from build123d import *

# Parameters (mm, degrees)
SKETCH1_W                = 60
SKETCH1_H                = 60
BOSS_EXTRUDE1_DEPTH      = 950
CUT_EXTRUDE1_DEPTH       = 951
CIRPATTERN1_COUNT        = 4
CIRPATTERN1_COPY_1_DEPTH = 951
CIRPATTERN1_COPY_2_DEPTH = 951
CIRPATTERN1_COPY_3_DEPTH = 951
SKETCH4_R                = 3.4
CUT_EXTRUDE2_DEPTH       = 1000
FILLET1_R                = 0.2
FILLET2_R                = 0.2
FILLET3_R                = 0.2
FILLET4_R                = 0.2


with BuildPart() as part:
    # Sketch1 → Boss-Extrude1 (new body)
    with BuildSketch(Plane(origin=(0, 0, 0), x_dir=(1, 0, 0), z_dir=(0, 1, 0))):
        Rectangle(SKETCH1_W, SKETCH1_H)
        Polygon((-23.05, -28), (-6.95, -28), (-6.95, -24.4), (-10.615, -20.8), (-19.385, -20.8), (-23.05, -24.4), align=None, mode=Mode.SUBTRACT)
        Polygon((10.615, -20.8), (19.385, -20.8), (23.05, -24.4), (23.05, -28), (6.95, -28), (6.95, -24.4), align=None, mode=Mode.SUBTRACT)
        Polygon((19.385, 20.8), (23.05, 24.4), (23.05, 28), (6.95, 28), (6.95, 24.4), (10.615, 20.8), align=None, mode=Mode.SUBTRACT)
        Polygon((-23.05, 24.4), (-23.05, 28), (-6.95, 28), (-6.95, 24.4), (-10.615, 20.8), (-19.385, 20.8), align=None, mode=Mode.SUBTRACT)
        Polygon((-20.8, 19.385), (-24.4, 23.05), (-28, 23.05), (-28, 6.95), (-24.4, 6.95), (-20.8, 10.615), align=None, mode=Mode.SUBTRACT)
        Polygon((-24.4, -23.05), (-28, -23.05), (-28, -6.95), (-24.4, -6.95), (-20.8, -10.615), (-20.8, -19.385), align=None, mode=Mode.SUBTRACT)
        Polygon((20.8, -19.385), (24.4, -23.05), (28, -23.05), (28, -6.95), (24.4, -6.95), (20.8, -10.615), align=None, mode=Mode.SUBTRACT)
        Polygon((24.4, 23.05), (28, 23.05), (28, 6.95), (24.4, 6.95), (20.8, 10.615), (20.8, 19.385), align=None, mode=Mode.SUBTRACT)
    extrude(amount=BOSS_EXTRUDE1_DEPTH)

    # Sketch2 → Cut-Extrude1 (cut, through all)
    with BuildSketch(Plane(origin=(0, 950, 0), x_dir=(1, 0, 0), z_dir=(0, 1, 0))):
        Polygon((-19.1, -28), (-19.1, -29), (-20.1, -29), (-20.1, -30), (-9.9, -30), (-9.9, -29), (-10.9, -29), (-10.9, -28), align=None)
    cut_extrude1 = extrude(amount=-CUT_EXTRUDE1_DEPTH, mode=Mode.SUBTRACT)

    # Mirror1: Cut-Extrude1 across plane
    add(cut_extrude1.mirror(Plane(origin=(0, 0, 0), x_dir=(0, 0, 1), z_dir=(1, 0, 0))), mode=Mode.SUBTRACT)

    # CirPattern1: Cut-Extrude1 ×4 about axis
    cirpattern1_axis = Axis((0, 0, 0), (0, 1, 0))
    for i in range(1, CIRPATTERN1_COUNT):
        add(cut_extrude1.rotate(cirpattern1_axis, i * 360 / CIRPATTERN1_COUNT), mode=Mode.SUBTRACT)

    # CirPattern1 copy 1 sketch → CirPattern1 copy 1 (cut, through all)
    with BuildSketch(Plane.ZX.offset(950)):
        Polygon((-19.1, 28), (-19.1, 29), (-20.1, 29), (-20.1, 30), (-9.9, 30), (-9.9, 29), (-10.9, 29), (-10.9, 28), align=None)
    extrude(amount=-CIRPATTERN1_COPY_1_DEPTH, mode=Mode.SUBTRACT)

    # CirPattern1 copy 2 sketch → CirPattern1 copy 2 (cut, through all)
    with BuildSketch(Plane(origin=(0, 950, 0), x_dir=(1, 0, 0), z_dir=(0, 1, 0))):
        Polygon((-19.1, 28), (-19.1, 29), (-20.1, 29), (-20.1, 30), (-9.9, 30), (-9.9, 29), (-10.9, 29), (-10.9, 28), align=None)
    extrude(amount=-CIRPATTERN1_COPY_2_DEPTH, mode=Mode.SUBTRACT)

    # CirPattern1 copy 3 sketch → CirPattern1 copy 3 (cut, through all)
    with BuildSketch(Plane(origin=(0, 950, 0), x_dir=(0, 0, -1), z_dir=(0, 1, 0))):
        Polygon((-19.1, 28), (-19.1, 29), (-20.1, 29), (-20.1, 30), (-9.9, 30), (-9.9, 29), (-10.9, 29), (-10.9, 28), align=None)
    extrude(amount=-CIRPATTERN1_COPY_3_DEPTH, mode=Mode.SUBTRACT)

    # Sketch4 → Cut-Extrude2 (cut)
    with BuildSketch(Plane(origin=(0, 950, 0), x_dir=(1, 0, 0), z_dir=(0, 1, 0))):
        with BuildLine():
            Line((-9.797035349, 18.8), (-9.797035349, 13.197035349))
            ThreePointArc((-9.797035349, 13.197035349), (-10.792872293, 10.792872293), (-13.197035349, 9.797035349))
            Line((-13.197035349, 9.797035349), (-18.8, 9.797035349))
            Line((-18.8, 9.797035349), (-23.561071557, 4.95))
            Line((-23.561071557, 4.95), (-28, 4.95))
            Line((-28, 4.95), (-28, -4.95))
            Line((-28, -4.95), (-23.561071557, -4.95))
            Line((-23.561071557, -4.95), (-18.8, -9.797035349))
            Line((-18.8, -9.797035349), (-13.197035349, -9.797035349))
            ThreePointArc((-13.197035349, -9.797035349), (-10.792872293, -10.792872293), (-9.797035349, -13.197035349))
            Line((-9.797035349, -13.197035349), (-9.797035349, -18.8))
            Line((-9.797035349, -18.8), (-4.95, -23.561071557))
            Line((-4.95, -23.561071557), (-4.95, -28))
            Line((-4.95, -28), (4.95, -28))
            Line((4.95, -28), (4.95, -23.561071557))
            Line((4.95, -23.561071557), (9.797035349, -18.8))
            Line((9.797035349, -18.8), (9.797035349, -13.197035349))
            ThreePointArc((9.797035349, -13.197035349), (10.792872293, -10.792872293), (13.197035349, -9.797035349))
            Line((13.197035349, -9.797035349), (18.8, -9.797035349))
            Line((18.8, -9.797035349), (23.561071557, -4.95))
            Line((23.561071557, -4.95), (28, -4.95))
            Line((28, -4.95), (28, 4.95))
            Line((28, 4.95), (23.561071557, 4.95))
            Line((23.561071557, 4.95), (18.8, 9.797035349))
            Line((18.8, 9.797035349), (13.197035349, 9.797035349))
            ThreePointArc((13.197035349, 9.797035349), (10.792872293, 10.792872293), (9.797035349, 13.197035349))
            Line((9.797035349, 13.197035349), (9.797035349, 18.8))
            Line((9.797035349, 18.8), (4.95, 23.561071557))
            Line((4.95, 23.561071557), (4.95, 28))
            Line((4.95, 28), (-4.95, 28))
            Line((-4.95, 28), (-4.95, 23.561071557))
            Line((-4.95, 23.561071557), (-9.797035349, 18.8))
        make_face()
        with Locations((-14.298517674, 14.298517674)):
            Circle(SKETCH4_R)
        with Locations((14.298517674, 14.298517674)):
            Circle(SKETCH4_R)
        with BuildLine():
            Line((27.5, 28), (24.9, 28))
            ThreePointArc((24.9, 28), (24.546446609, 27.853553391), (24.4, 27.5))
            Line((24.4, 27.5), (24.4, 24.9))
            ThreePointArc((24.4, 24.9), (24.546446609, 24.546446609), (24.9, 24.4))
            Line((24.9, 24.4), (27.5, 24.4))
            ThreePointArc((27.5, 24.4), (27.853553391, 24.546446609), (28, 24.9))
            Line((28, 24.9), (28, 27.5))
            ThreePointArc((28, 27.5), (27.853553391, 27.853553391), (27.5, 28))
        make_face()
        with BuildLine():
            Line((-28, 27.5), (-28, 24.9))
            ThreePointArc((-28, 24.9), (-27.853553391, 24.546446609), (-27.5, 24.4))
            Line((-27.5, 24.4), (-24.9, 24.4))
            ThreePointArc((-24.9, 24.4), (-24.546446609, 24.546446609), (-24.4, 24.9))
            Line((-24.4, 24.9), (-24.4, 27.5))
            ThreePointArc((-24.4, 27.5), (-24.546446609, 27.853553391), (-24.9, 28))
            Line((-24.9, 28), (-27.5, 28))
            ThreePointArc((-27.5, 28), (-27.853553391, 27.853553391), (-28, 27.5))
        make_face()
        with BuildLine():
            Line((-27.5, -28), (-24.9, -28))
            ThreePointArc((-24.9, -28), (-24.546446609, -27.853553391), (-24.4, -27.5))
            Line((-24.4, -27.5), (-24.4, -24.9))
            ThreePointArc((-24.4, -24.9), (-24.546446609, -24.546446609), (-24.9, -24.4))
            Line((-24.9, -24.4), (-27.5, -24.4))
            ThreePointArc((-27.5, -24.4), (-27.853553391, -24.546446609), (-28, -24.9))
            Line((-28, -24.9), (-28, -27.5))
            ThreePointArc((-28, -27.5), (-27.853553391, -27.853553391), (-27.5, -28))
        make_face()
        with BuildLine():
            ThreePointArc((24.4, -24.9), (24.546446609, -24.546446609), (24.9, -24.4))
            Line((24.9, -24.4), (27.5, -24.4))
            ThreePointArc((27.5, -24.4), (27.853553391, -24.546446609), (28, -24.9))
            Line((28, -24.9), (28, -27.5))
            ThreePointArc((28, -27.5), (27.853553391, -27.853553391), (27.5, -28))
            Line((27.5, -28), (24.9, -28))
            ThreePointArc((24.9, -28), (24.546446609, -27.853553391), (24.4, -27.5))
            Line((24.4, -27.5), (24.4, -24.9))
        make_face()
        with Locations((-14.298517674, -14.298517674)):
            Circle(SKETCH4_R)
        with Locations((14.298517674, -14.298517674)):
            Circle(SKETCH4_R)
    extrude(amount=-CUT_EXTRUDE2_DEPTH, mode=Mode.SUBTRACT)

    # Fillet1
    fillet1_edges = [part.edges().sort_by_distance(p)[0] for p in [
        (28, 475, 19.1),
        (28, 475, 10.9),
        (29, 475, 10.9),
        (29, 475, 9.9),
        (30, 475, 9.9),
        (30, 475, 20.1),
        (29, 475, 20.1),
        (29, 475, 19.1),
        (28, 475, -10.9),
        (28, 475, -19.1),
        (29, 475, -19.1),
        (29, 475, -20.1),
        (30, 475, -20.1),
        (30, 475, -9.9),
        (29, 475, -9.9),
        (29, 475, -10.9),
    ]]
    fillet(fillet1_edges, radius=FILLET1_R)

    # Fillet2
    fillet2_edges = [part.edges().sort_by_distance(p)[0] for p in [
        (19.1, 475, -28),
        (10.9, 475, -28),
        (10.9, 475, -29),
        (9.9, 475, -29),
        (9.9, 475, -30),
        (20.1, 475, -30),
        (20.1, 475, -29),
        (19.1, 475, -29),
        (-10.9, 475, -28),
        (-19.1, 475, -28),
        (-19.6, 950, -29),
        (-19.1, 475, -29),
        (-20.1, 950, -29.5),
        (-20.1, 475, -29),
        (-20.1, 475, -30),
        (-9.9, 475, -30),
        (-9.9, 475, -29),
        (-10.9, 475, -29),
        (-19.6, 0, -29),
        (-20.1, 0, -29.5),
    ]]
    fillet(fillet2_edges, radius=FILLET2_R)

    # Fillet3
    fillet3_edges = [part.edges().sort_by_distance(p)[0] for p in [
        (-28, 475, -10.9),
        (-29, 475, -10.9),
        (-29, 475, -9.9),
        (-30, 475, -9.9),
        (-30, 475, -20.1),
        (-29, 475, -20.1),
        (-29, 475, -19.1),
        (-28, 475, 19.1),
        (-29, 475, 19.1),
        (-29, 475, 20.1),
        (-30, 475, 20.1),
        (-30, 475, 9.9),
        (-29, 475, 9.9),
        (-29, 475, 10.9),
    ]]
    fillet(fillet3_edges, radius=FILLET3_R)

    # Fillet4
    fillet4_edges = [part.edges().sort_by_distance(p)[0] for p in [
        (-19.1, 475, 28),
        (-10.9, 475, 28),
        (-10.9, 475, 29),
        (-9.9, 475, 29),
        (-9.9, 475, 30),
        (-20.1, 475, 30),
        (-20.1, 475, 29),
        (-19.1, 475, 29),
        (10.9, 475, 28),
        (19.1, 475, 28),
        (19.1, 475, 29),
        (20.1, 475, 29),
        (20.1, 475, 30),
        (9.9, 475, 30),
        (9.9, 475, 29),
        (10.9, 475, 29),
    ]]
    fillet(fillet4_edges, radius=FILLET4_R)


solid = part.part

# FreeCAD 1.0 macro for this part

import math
import FreeCAD as App
import Part
import Sketcher

V = App.Vector
Q = App.Units.Quantity


def edges_at(feature, points):
    """Names of the edges that pass closest to the given points."""
    edges = feature.Shape.Edges
    near = lambda p: min(range(len(edges)), key=lambda i: edges[i].distToShape(Part.Vertex(*p))[0])
    return sorted({f"Edge{near(p) + 1}" for p in points})


def add_polygon(sketch, points):
    """Adds a closed chain of lines whose ends are joined by coincident constraints."""
    first, n = sketch.GeometryCount, len(points)
    for a, b in zip(points, points[1:] + points[:1]):
        sketch.addGeometry(Part.LineSegment(App.Vector(*a, 0), App.Vector(*b, 0)), False)
    for i in range(n):
        sketch.addConstraint(Sketcher.Constraint("Coincident", first + i, 2, first + (i + 1) % n, 1))

doc = App.newDocument("Part")
body = doc.addObject("PartDesign::Body", "Body")

sketch1 = body.newObject("Sketcher::SketchObject", "Sketch")
sketch1.AttachmentSupport = (doc.getObject("XZ_Plane"), [""])
sketch1.MapMode = "FlatFace"
add_polygon(sketch1, [(-30, -30), (-30, 30), (30, 30), (30, -30)])
add_polygon(sketch1, [(-7, 28), (-23.1, 28), (-23.1, 24.4), (-19.4, 20.8), (-10.6, 20.8), (-7, 24.4)])
add_polygon(sketch1, [(-20.8, 19.4), (-24.4, 23.1), (-28, 23.1), (-28, 7), (-24.4, 7), (-20.8, 10.6)])
add_polygon(sketch1, [(7, 24.4), (10.6, 20.8), (19.4, 20.8), (23.1, 24.4), (23.1, 28), (7, 28)])
add_polygon(sketch1, [(24.4, 23.1), (20.8, 19.4), (20.8, 10.6), (24.4, 7), (28, 7), (28, 23.1)])
add_polygon(sketch1, [(-24.4, -23.1), (-20.8, -19.4), (-20.8, -10.6), (-24.4, -7), (-28, -7), (-28, -23.1)])
add_polygon(sketch1, [(-19.4, -20.8), (-23.1, -24.4), (-23.1, -28), (-7, -28), (-7, -24.4), (-10.6, -20.8)])
add_polygon(sketch1, [(20.8, -19.4), (24.4, -23.1), (28, -23.1), (28, -7), (24.4, -7), (20.8, -10.6)])
add_polygon(sketch1, [(23.1, -24.4), (19.4, -20.8), (10.6, -20.8), (7, -24.4), (7, -28), (23.1, -28)])
sketch1.addConstraint(Sketcher.Constraint("Vertical", 0))
sketch1.addConstraint(Sketcher.Constraint("Horizontal", 1))
sketch1.addConstraint(Sketcher.Constraint("Vertical", 2))
sketch1.addConstraint(Sketcher.Constraint("Horizontal", 3))
sketch1.addConstraint(Sketcher.Constraint("Horizontal", 4))
sketch1.addConstraint(Sketcher.Constraint("Vertical", 5))
sketch1.addConstraint(Sketcher.Constraint("Horizontal", 7))
sketch1.addConstraint(Sketcher.Constraint("Vertical", 9))
sketch1.addConstraint(Sketcher.Constraint("Horizontal", 11))
sketch1.addConstraint(Sketcher.Constraint("Vertical", 12))
sketch1.addConstraint(Sketcher.Constraint("Horizontal", 13))
sketch1.addConstraint(Sketcher.Constraint("Vertical", 15))
sketch1.addConstraint(Sketcher.Constraint("Horizontal", 17))
sketch1.addConstraint(Sketcher.Constraint("Vertical", 19))
sketch1.addConstraint(Sketcher.Constraint("Horizontal", 20))
sketch1.addConstraint(Sketcher.Constraint("Vertical", 21))
sketch1.addConstraint(Sketcher.Constraint("Vertical", 23))
sketch1.addConstraint(Sketcher.Constraint("Horizontal", 25))
sketch1.addConstraint(Sketcher.Constraint("Vertical", 26))
sketch1.addConstraint(Sketcher.Constraint("Horizontal", 27))
sketch1.addConstraint(Sketcher.Constraint("Vertical", 29))
sketch1.addConstraint(Sketcher.Constraint("Horizontal", 31))
sketch1.addConstraint(Sketcher.Constraint("Vertical", 32))
sketch1.addConstraint(Sketcher.Constraint("Horizontal", 33))
sketch1.addConstraint(Sketcher.Constraint("Vertical", 35))
sketch1.addConstraint(Sketcher.Constraint("Horizontal", 36))
sketch1.addConstraint(Sketcher.Constraint("Vertical", 37))
sketch1.addConstraint(Sketcher.Constraint("Horizontal", 39))
sketch1.addConstraint(Sketcher.Constraint("Horizontal", 41))
sketch1.addConstraint(Sketcher.Constraint("Vertical", 42))
sketch1.addConstraint(Sketcher.Constraint("Horizontal", 43))
sketch1.addConstraint(Sketcher.Constraint("Vertical", 45))
sketch1.addConstraint(Sketcher.Constraint("Horizontal", 47))
sketch1.addConstraint(Sketcher.Constraint("Vertical", 49))
sketch1.addConstraint(Sketcher.Constraint("Horizontal", 50))
sketch1.addConstraint(Sketcher.Constraint("Vertical", 51))
sketch1.addConstraint(Sketcher.Constraint("Symmetric", 0, 2, 2, 2, -1, 1))
sketch1.addConstraint(Sketcher.Constraint("Symmetric", 22, 2, 28, 2, -1, 1))
sketch1.addConstraint(Sketcher.Constraint("Symmetric", 24, 2, 30, 2, -1, 1))
sketch1.addConstraint(Sketcher.Constraint("Symmetric", 26, 2, 32, 2, -1, 1))
sketch1.addConstraint(Sketcher.Constraint("Symmetric", 18, 2, 34, 2, -1, 1))
sketch1.addConstraint(Sketcher.Constraint("Symmetric", 20, 2, 36, 2, -1, 1))
sketch1.addConstraint(Sketcher.Constraint("Symmetric", 16, 2, 38, 2, -1, 1))
sketch1.addConstraint(Sketcher.Constraint("Symmetric", 10, 2, 40, 2, -1, 1))
sketch1.addConstraint(Sketcher.Constraint("Symmetric", 12, 2, 42, 2, -1, 1))
sketch1.addConstraint(Sketcher.Constraint("Symmetric", 14, 2, 44, 2, -1, 1))
sketch1.addConstraint(Sketcher.Constraint("Symmetric", 6, 2, 46, 2, -1, 1))
sketch1.addConstraint(Sketcher.Constraint("Symmetric", 8, 2, 48, 2, -1, 1))
sketch1.addConstraint(Sketcher.Constraint("Symmetric", 4, 2, 50, 2, -1, 1))
sketch1.addConstraint(Sketcher.Constraint("Symmetric", 7, 2, 16, 2, -2))
sketch1.addConstraint(Sketcher.Constraint("Symmetric", 5, 2, 18, 2, -2))
sketch1.addConstraint(Sketcher.Constraint("Symmetric", 9, 2, 20, 2, -2))
sketch1.addConstraint(Sketcher.Constraint("Symmetric", 15, 2, 22, 2, -2))
sketch1.addConstraint(Sketcher.Constraint("Symmetric", 13, 2, 24, 2, -2))
sketch1.addConstraint(Sketcher.Constraint("Symmetric", 11, 2, 26, 2, -2))
sketch1.addConstraint(Sketcher.Constraint("Perpendicular", 8, 10))
sketch1.addConstraint(Sketcher.Constraint("Perpendicular", 6, 14))
sketch1.addConstraint(Sketcher.Constraint("Perpendicular", 14, 16))
sketch1.addConstraint(Sketcher.Constraint("Perpendicular", 10, 18))
sketch1.addConstraint(Sketcher.Constraint("Perpendicular", 16, 22))
sketch1.addConstraint(Sketcher.Constraint("Perpendicular", 18, 24))
sketch1.addConstraint(Sketcher.Constraint("Parallel", 22, 28))
sketch1.addConstraint(Sketcher.Constraint("Parallel", 24, 30))
sketch1.addConstraint(Sketcher.Constraint("Perpendicular", 30, 34))
sketch1.addConstraint(Sketcher.Constraint("Perpendicular", 28, 38))
sketch1.addConstraint(Sketcher.Constraint("Perpendicular", 34, 40))
sketch1.addConstraint(Sketcher.Constraint("Perpendicular", 38, 44))
sketch1.addConstraint(Sketcher.Constraint("Perpendicular", 44, 46))
sketch1.addConstraint(Sketcher.Constraint("Perpendicular", 40, 48))
sketch1.addConstraint(Sketcher.Constraint("Horizontal", 5, 2, 8, 2))
sketch1.addConstraint(Sketcher.Constraint("Horizontal", 18, 2, 21, 2))
sketch1.addConstraint(Sketcher.Constraint("Vertical", 10, 2, 13, 2))
sketch1.addConstraint(Sketcher.Constraint("Equal", 3, 0))
sketch1.addConstraint(Sketcher.Constraint("Equal", 43, 5))
sketch1.addConstraint(Sketcher.Constraint("Equal", 50, 12))
sketch1.addConstraint(Sketcher.Constraint("Equal", 47, 15))
sketch1.addConstraint(Sketcher.Constraint("DistanceX", 1, 1, 1, 2, Q("60 mm")))
sketch1.addConstraint(Sketcher.Constraint("DistanceX", 4, 2, 4, 1, Q("16.1 mm")))
sketch1.addConstraint(Sketcher.Constraint("DistanceX", 11, 2, 11, 1, Q("3.6 mm")))
sketch1.addConstraint(Sketcher.Constraint("DistanceY", -1, 1, 4, 2, Q("28 mm")))
sketch1.addConstraint(Sketcher.Constraint("DistanceX", 11, 2, -1, 1, Q("28 mm")))
sketch1.addConstraint(Sketcher.Constraint("DistanceX", 6, 2, 16, 2, Q("30 mm")))
sketch1.addConstraint(Sketcher.Constraint("DistanceY", 28, 2, 14, 2, Q("30 mm")))
sketch1.addConstraint(Sketcher.Constraint("DistanceX", 7, 1, 7, 2, Q("8.77 mm")))
sketch1.addConstraint(Sketcher.Constraint("DistanceY", -1, 1, 6, 2, Q("20.8 mm")))
pad1 = body.newObject("PartDesign::Pad", "Pad")
pad1.Profile = sketch1
pad1.Length = 950
pad1.Reversed = True

sketch2 = body.newObject("Sketcher::SketchObject", "Sketch001")
sketch2.AttachmentSupport = (doc.getObject("XZ_Plane"), [""])
sketch2.MapMode = "FlatFace"
sketch2.AttachmentOffset = App.Placement(V(0, 0, -950), App.Rotation())
add_polygon(sketch2, [(-19.1, 28), (-19.1, 29), (-20.1, 29), (-20.1, 30), (-9.9, 30), (-9.9, 29), (-10.9, 29), (-10.9, 28)])
sketch2.addConstraint(Sketcher.Constraint("Vertical", 0))
sketch2.addConstraint(Sketcher.Constraint("Horizontal", 1))
sketch2.addConstraint(Sketcher.Constraint("Vertical", 2))
sketch2.addConstraint(Sketcher.Constraint("Horizontal", 3))
sketch2.addConstraint(Sketcher.Constraint("Vertical", 4))
sketch2.addConstraint(Sketcher.Constraint("Horizontal", 5))
sketch2.addConstraint(Sketcher.Constraint("Vertical", 6))
sketch2.addConstraint(Sketcher.Constraint("Horizontal", 7))
sketch2.addConstraint(Sketcher.Constraint("Horizontal", 1, 2, 4, 2))
sketch2.addConstraint(Sketcher.Constraint("Equal", 1, 5))
sketch2.addConstraint(Sketcher.Constraint("Equal", 5, 0))
sketch2.addConstraint(Sketcher.Constraint("Equal", 0, 2))
sketch2.addConstraint(Sketcher.Constraint("DistanceX", 1, 2, 1, 1, Q("1 mm")))
sketch2.addConstraint(Sketcher.Constraint("DistanceX", 3, 1, 3, 2, Q("10.2 mm")))
sketch2.addConstraint(Sketcher.Constraint("DistanceY", -1, 1, 0, 2, Q("29 mm")))
sketch2.addConstraint(Sketcher.Constraint("DistanceX", 0, 2, -1, 1, Q("19.1 mm")))
pocket1 = body.newObject("PartDesign::Pocket", "Pocket")
pocket1.Profile = sketch2
pocket1.Type = "ThroughAll"
pocket1.Reversed = True
doc.recompute()

mirrored = body.newObject("PartDesign::Mirrored", "Mirrored")
mirrored.Originals = [pocket1]
mirrored.MirrorPlane = (doc.getObject("YZ_Plane"), [""])
body.Tip = mirrored
doc.recompute()

polarpattern = body.newObject("PartDesign::PolarPattern", "PolarPattern")
polarpattern.Originals = [pocket1]
polarpattern.Axis = (doc.getObject("Y_Axis"), [""])
polarpattern.Angle = 360
polarpattern.Occurrences = 4
body.Tip = polarpattern

sketch3 = body.newObject("Sketcher::SketchObject", "Sketch002")
sketch3.AttachmentSupport = (doc.getObject("XZ_Plane"), [""])
sketch3.MapMode = "FlatFace"
sketch3.AttachmentOffset = App.Placement(V(0, 0, -950), App.Rotation())
add_polygon(sketch3, [(29, -19.1), (28, -19.1), (28, -10.9), (29, -10.9), (29, -9.9), (30, -9.9), (30, -20.1), (29, -20.1)])
sketch3.addConstraint(Sketcher.Constraint("Horizontal", 0))
sketch3.addConstraint(Sketcher.Constraint("Vertical", 1))
sketch3.addConstraint(Sketcher.Constraint("Horizontal", 2))
sketch3.addConstraint(Sketcher.Constraint("Vertical", 3))
sketch3.addConstraint(Sketcher.Constraint("Horizontal", 4))
sketch3.addConstraint(Sketcher.Constraint("Vertical", 5))
sketch3.addConstraint(Sketcher.Constraint("Horizontal", 6))
sketch3.addConstraint(Sketcher.Constraint("Vertical", 7))
sketch3.addConstraint(Sketcher.Constraint("Vertical", 3, 2, 6, 2))
sketch3.addConstraint(Sketcher.Constraint("Equal", 2, 4))
sketch3.addConstraint(Sketcher.Constraint("Equal", 6, 3))
sketch3.addConstraint(Sketcher.Constraint("Equal", 3, 7))
sketch3.addConstraint(Sketcher.Constraint("DistanceX", 0, 2, 0, 1, Q("1 mm")))
sketch3.addConstraint(Sketcher.Constraint("DistanceY", 1, 1, 1, 2, Q("8.2 mm")))
sketch3.addConstraint(Sketcher.Constraint("DistanceX", -1, 1, 0, 2, Q("28 mm")))
sketch3.addConstraint(Sketcher.Constraint("DistanceY", 0, 2, -1, 1, Q("19.1 mm")))
pocket2 = body.newObject("PartDesign::Pocket", "Pocket001")
pocket2.Profile = sketch3
pocket2.Type = "ThroughAll"
pocket2.Reversed = True

sketch4 = body.newObject("Sketcher::SketchObject", "Sketch003")
sketch4.AttachmentSupport = (doc.getObject("XZ_Plane"), [""])
sketch4.MapMode = "FlatFace"
sketch4.AttachmentOffset = App.Placement(V(0, 0, -950), App.Rotation())
add_polygon(sketch4, [(-19.1, -29), (-19.1, -28), (-10.9, -28), (-10.9, -29), (-9.9, -29), (-9.9, -30), (-20.1, -30), (-20.1, -29)])
sketch4.addConstraint(Sketcher.Constraint("Vertical", 0))
sketch4.addConstraint(Sketcher.Constraint("Horizontal", 1))
sketch4.addConstraint(Sketcher.Constraint("Vertical", 2))
sketch4.addConstraint(Sketcher.Constraint("Horizontal", 3))
sketch4.addConstraint(Sketcher.Constraint("Vertical", 4))
sketch4.addConstraint(Sketcher.Constraint("Horizontal", 5))
sketch4.addConstraint(Sketcher.Constraint("Vertical", 6))
sketch4.addConstraint(Sketcher.Constraint("Horizontal", 7))
sketch4.addConstraint(Sketcher.Constraint("Horizontal", 3, 2, 6, 2))
sketch4.addConstraint(Sketcher.Constraint("Equal", 3, 7))
sketch4.addConstraint(Sketcher.Constraint("Equal", 7, 0))
sketch4.addConstraint(Sketcher.Constraint("Equal", 2, 4))
sketch4.addConstraint(Sketcher.Constraint("DistanceX", 3, 1, 3, 2, Q("1 mm")))
sketch4.addConstraint(Sketcher.Constraint("DistanceX", 1, 1, 1, 2, Q("8.2 mm")))
sketch4.addConstraint(Sketcher.Constraint("DistanceY", 0, 2, -1, 1, Q("28 mm")))
sketch4.addConstraint(Sketcher.Constraint("DistanceX", 0, 2, -1, 1, Q("19.1 mm")))
pocket3 = body.newObject("PartDesign::Pocket", "Pocket002")
pocket3.Profile = sketch4
pocket3.Type = "ThroughAll"
pocket3.Reversed = True

sketch5 = body.newObject("Sketcher::SketchObject", "Sketch004")
sketch5.AttachmentSupport = (doc.getObject("XZ_Plane"), [""])
sketch5.MapMode = "FlatFace"
sketch5.AttachmentOffset = App.Placement(V(0, 0, -950), App.Rotation())
add_polygon(sketch5, [(-29, 19.1), (-28, 19.1), (-28, 10.9), (-29, 10.9), (-29, 9.9), (-30, 9.9), (-30, 20.1), (-29, 20.1)])
sketch5.addConstraint(Sketcher.Constraint("Horizontal", 0))
sketch5.addConstraint(Sketcher.Constraint("Vertical", 1))
sketch5.addConstraint(Sketcher.Constraint("Horizontal", 2))
sketch5.addConstraint(Sketcher.Constraint("Vertical", 3))
sketch5.addConstraint(Sketcher.Constraint("Horizontal", 4))
sketch5.addConstraint(Sketcher.Constraint("Vertical", 5))
sketch5.addConstraint(Sketcher.Constraint("Horizontal", 6))
sketch5.addConstraint(Sketcher.Constraint("Vertical", 7))
sketch5.addConstraint(Sketcher.Constraint("Vertical", 3, 2, 6, 2))
sketch5.addConstraint(Sketcher.Constraint("Equal", 2, 4))
sketch5.addConstraint(Sketcher.Constraint("Equal", 6, 3))
sketch5.addConstraint(Sketcher.Constraint("Equal", 3, 7))
sketch5.addConstraint(Sketcher.Constraint("DistanceX", 0, 1, 0, 2, Q("1 mm")))
sketch5.addConstraint(Sketcher.Constraint("DistanceY", 1, 2, 1, 1, Q("8.2 mm")))
sketch5.addConstraint(Sketcher.Constraint("DistanceX", 0, 2, -1, 1, Q("28 mm")))
sketch5.addConstraint(Sketcher.Constraint("DistanceY", -1, 1, 0, 2, Q("19.1 mm")))
pocket4 = body.newObject("PartDesign::Pocket", "Pocket003")
pocket4.Profile = sketch5
pocket4.Type = "ThroughAll"
pocket4.Reversed = True

sketch6 = body.newObject("Sketcher::SketchObject", "Sketch005")
sketch6.AttachmentSupport = (doc.getObject("XZ_Plane"), [""])
sketch6.MapMode = "FlatFace"
sketch6.AttachmentOffset = App.Placement(V(0, 0, -950), App.Rotation())
sketch6.addGeometry(Part.LineSegment(V(-9.8, -18.8, 0), V(-9.8, -13.2, 0)), False)
sketch6.addGeometry(Part.ArcOfCircle(Part.Circle(V(-13.2, -13.2, 0), V(0, 0, 1), 3.4), math.radians(0), math.radians(90)), False)
sketch6.addGeometry(Part.LineSegment(V(-13.2, -9.8, 0), V(-18.8, -9.8, 0)), False)
sketch6.addGeometry(Part.LineSegment(V(-18.8, -9.8, 0), V(-23.56, -4.95, 0)), False)
sketch6.addGeometry(Part.LineSegment(V(-23.56, -4.95, 0), V(-28, -4.95, 0)), False)
sketch6.addGeometry(Part.LineSegment(V(-28, -4.95, 0), V(-28, 4.95, 0)), False)
sketch6.addGeometry(Part.LineSegment(V(-28, 4.95, 0), V(-23.56, 4.95, 0)), False)
sketch6.addGeometry(Part.LineSegment(V(-23.56, 4.95, 0), V(-18.8, 9.8, 0)), False)
sketch6.addGeometry(Part.LineSegment(V(-18.8, 9.8, 0), V(-13.2, 9.8, 0)), False)
sketch6.addGeometry(Part.ArcOfCircle(Part.Circle(V(-13.2, 13.2, 0), V(0, 0, 1), 3.4), math.radians(-90), math.radians(0)), False)
sketch6.addGeometry(Part.LineSegment(V(-9.8, 13.2, 0), V(-9.8, 18.8, 0)), False)
sketch6.addGeometry(Part.LineSegment(V(-9.8, 18.8, 0), V(-4.95, 23.56, 0)), False)
sketch6.addGeometry(Part.LineSegment(V(-4.95, 23.56, 0), V(-4.95, 28, 0)), False)
sketch6.addGeometry(Part.LineSegment(V(-4.95, 28, 0), V(4.95, 28, 0)), False)
sketch6.addGeometry(Part.LineSegment(V(4.95, 28, 0), V(4.95, 23.56, 0)), False)
sketch6.addGeometry(Part.LineSegment(V(4.95, 23.56, 0), V(9.8, 18.8, 0)), False)
sketch6.addGeometry(Part.LineSegment(V(9.8, 18.8, 0), V(9.8, 13.2, 0)), False)
sketch6.addGeometry(Part.ArcOfCircle(Part.Circle(V(13.2, 13.2, 0), V(0, 0, 1), 3.4), math.radians(180), math.radians(270)), False)
sketch6.addGeometry(Part.LineSegment(V(13.2, 9.8, 0), V(18.8, 9.8, 0)), False)
sketch6.addGeometry(Part.LineSegment(V(18.8, 9.8, 0), V(23.56, 4.95, 0)), False)
sketch6.addGeometry(Part.LineSegment(V(23.56, 4.95, 0), V(28, 4.95, 0)), False)
sketch6.addGeometry(Part.LineSegment(V(28, 4.95, 0), V(28, -4.95, 0)), False)
sketch6.addGeometry(Part.LineSegment(V(28, -4.95, 0), V(23.56, -4.95, 0)), False)
sketch6.addGeometry(Part.LineSegment(V(23.56, -4.95, 0), V(18.8, -9.8, 0)), False)
sketch6.addGeometry(Part.LineSegment(V(18.8, -9.8, 0), V(13.2, -9.8, 0)), False)
sketch6.addGeometry(Part.ArcOfCircle(Part.Circle(V(13.2, -13.2, 0), V(0, 0, 1), 3.4), math.radians(90), math.radians(180)), False)
sketch6.addGeometry(Part.LineSegment(V(9.8, -13.2, 0), V(9.8, -18.8, 0)), False)
sketch6.addGeometry(Part.LineSegment(V(9.8, -18.8, 0), V(4.95, -23.56, 0)), False)
sketch6.addGeometry(Part.LineSegment(V(4.95, -23.56, 0), V(4.95, -28, 0)), False)
sketch6.addGeometry(Part.LineSegment(V(4.95, -28, 0), V(-4.95, -28, 0)), False)
sketch6.addGeometry(Part.LineSegment(V(-4.95, -28, 0), V(-4.95, -23.56, 0)), False)
sketch6.addGeometry(Part.LineSegment(V(-4.95, -23.56, 0), V(-9.8, -18.8, 0)), False)
sketch6.addGeometry(Part.Circle(V(-14.3, -14.3, 0), V(0, 0, 1), 3.4), False)
sketch6.addGeometry(Part.Circle(V(14.3, -14.3, 0), V(0, 0, 1), 3.4), False)
sketch6.addGeometry(Part.LineSegment(V(27.5, -28, 0), V(24.9, -28, 0)), False)
sketch6.addGeometry(Part.ArcOfCircle(Part.Circle(V(24.9, -27.5, 0), V(0, 0, 1), 0.5), math.radians(180), math.radians(270)), False)
sketch6.addGeometry(Part.LineSegment(V(24.4, -27.5, 0), V(24.4, -24.9, 0)), False)
sketch6.addGeometry(Part.ArcOfCircle(Part.Circle(V(24.9, -24.9, 0), V(0, 0, 1), 0.5), math.radians(90), math.radians(180)), False)
sketch6.addGeometry(Part.LineSegment(V(24.9, -24.4, 0), V(27.5, -24.4, 0)), False)
sketch6.addGeometry(Part.ArcOfCircle(Part.Circle(V(27.5, -24.9, 0), V(0, 0, 1), 0.5), math.radians(0), math.radians(90)), False)
sketch6.addGeometry(Part.LineSegment(V(28, -24.9, 0), V(28, -27.5, 0)), False)
sketch6.addGeometry(Part.ArcOfCircle(Part.Circle(V(27.5, -27.5, 0), V(0, 0, 1), 0.5), math.radians(-90), math.radians(0)), False)
sketch6.addGeometry(Part.LineSegment(V(-28, -27.5, 0), V(-28, -24.9, 0)), False)
sketch6.addGeometry(Part.ArcOfCircle(Part.Circle(V(-27.5, -24.9, 0), V(0, 0, 1), 0.5), math.radians(90), math.radians(180)), False)
sketch6.addGeometry(Part.LineSegment(V(-27.5, -24.4, 0), V(-24.9, -24.4, 0)), False)
sketch6.addGeometry(Part.ArcOfCircle(Part.Circle(V(-24.9, -24.9, 0), V(0, 0, 1), 0.5), math.radians(0), math.radians(90)), False)
sketch6.addGeometry(Part.LineSegment(V(-24.4, -24.9, 0), V(-24.4, -27.5, 0)), False)
sketch6.addGeometry(Part.ArcOfCircle(Part.Circle(V(-24.9, -27.5, 0), V(0, 0, 1), 0.5), math.radians(-90), math.radians(0)), False)
sketch6.addGeometry(Part.LineSegment(V(-24.9, -28, 0), V(-27.5, -28, 0)), False)
sketch6.addGeometry(Part.ArcOfCircle(Part.Circle(V(-27.5, -27.5, 0), V(0, 0, 1), 0.5), math.radians(180), math.radians(270)), False)
sketch6.addGeometry(Part.LineSegment(V(-27.5, 28, 0), V(-24.9, 28, 0)), False)
sketch6.addGeometry(Part.ArcOfCircle(Part.Circle(V(-24.9, 27.5, 0), V(0, 0, 1), 0.5), math.radians(0), math.radians(90)), False)
sketch6.addGeometry(Part.LineSegment(V(-24.4, 27.5, 0), V(-24.4, 24.9, 0)), False)
sketch6.addGeometry(Part.ArcOfCircle(Part.Circle(V(-24.9, 24.9, 0), V(0, 0, 1), 0.5), math.radians(-90), math.radians(0)), False)
sketch6.addGeometry(Part.LineSegment(V(-24.9, 24.4, 0), V(-27.5, 24.4, 0)), False)
sketch6.addGeometry(Part.ArcOfCircle(Part.Circle(V(-27.5, 24.9, 0), V(0, 0, 1), 0.5), math.radians(180), math.radians(270)), False)
sketch6.addGeometry(Part.LineSegment(V(-28, 24.9, 0), V(-28, 27.5, 0)), False)
sketch6.addGeometry(Part.ArcOfCircle(Part.Circle(V(-27.5, 27.5, 0), V(0, 0, 1), 0.5), math.radians(90), math.radians(180)), False)
sketch6.addGeometry(Part.ArcOfCircle(Part.Circle(V(24.9, 24.9, 0), V(0, 0, 1), 0.5), math.radians(180), math.radians(270)), False)
sketch6.addGeometry(Part.LineSegment(V(24.4, 24.9, 0), V(24.4, 27.5, 0)), False)
sketch6.addGeometry(Part.ArcOfCircle(Part.Circle(V(24.9, 27.5, 0), V(0, 0, 1), 0.5), math.radians(90), math.radians(180)), False)
sketch6.addGeometry(Part.LineSegment(V(24.9, 28, 0), V(27.5, 28, 0)), False)
sketch6.addGeometry(Part.ArcOfCircle(Part.Circle(V(27.5, 27.5, 0), V(0, 0, 1), 0.5), math.radians(0), math.radians(90)), False)
sketch6.addGeometry(Part.LineSegment(V(28, 27.5, 0), V(28, 24.9, 0)), False)
sketch6.addGeometry(Part.ArcOfCircle(Part.Circle(V(27.5, 24.9, 0), V(0, 0, 1), 0.5), math.radians(-90), math.radians(0)), False)
sketch6.addGeometry(Part.LineSegment(V(27.5, 24.4, 0), V(24.9, 24.4, 0)), False)
sketch6.addGeometry(Part.Circle(V(-14.3, 14.3, 0), V(0, 0, 1), 3.4), False)
sketch6.addGeometry(Part.Circle(V(14.3, 14.3, 0), V(0, 0, 1), 3.4), False)
sketch6.addConstraint(Sketcher.Constraint("Tangent", 0, 2, 1, 1))
sketch6.addConstraint(Sketcher.Constraint("Tangent", 1, 2, 2, 1))
sketch6.addConstraint(Sketcher.Constraint("Coincident", 2, 2, 3, 1))
sketch6.addConstraint(Sketcher.Constraint("Coincident", 3, 2, 4, 1))
sketch6.addConstraint(Sketcher.Constraint("Coincident", 4, 2, 5, 1))
sketch6.addConstraint(Sketcher.Constraint("Coincident", 5, 2, 6, 1))
sketch6.addConstraint(Sketcher.Constraint("Coincident", 6, 2, 7, 1))
sketch6.addConstraint(Sketcher.Constraint("Coincident", 7, 2, 8, 1))
sketch6.addConstraint(Sketcher.Constraint("Tangent", 8, 2, 9, 1))
sketch6.addConstraint(Sketcher.Constraint("Tangent", 9, 2, 10, 1))
sketch6.addConstraint(Sketcher.Constraint("Coincident", 10, 2, 11, 1))
sketch6.addConstraint(Sketcher.Constraint("Coincident", 11, 2, 12, 1))
sketch6.addConstraint(Sketcher.Constraint("Coincident", 12, 2, 13, 1))
sketch6.addConstraint(Sketcher.Constraint("Coincident", 13, 2, 14, 1))
sketch6.addConstraint(Sketcher.Constraint("Coincident", 14, 2, 15, 1))
sketch6.addConstraint(Sketcher.Constraint("Coincident", 15, 2, 16, 1))
sketch6.addConstraint(Sketcher.Constraint("Tangent", 16, 2, 17, 1))
sketch6.addConstraint(Sketcher.Constraint("Tangent", 17, 2, 18, 1))
sketch6.addConstraint(Sketcher.Constraint("Coincident", 18, 2, 19, 1))
sketch6.addConstraint(Sketcher.Constraint("Coincident", 19, 2, 20, 1))
sketch6.addConstraint(Sketcher.Constraint("Coincident", 20, 2, 21, 1))
sketch6.addConstraint(Sketcher.Constraint("Coincident", 21, 2, 22, 1))
sketch6.addConstraint(Sketcher.Constraint("Coincident", 22, 2, 23, 1))
sketch6.addConstraint(Sketcher.Constraint("Coincident", 23, 2, 24, 1))
sketch6.addConstraint(Sketcher.Constraint("Tangent", 24, 2, 25, 1))
sketch6.addConstraint(Sketcher.Constraint("Tangent", 25, 2, 26, 1))
sketch6.addConstraint(Sketcher.Constraint("Coincident", 26, 2, 27, 1))
sketch6.addConstraint(Sketcher.Constraint("Coincident", 27, 2, 28, 1))
sketch6.addConstraint(Sketcher.Constraint("Coincident", 28, 2, 29, 1))
sketch6.addConstraint(Sketcher.Constraint("Coincident", 29, 2, 30, 1))
sketch6.addConstraint(Sketcher.Constraint("Coincident", 30, 2, 31, 1))
sketch6.addConstraint(Sketcher.Constraint("Coincident", 31, 2, 0, 1))
sketch6.addConstraint(Sketcher.Constraint("Tangent", 34, 2, 35, 2))
sketch6.addConstraint(Sketcher.Constraint("Tangent", 35, 1, 36, 1))
sketch6.addConstraint(Sketcher.Constraint("Tangent", 36, 2, 37, 2))
sketch6.addConstraint(Sketcher.Constraint("Tangent", 37, 1, 38, 1))
sketch6.addConstraint(Sketcher.Constraint("Tangent", 38, 2, 39, 2))
sketch6.addConstraint(Sketcher.Constraint("Tangent", 39, 1, 40, 1))
sketch6.addConstraint(Sketcher.Constraint("Tangent", 40, 2, 41, 2))
sketch6.addConstraint(Sketcher.Constraint("Tangent", 41, 1, 34, 1))
sketch6.addConstraint(Sketcher.Constraint("Tangent", 42, 2, 43, 2))
sketch6.addConstraint(Sketcher.Constraint("Tangent", 43, 1, 44, 1))
sketch6.addConstraint(Sketcher.Constraint("Tangent", 44, 2, 45, 2))
sketch6.addConstraint(Sketcher.Constraint("Tangent", 45, 1, 46, 1))
sketch6.addConstraint(Sketcher.Constraint("Tangent", 46, 2, 47, 2))
sketch6.addConstraint(Sketcher.Constraint("Tangent", 47, 1, 48, 1))
sketch6.addConstraint(Sketcher.Constraint("Tangent", 48, 2, 49, 2))
sketch6.addConstraint(Sketcher.Constraint("Tangent", 49, 1, 42, 1))
sketch6.addConstraint(Sketcher.Constraint("Tangent", 50, 2, 51, 2))
sketch6.addConstraint(Sketcher.Constraint("Tangent", 51, 1, 52, 1))
sketch6.addConstraint(Sketcher.Constraint("Tangent", 52, 2, 53, 2))
sketch6.addConstraint(Sketcher.Constraint("Tangent", 53, 1, 54, 1))
sketch6.addConstraint(Sketcher.Constraint("Tangent", 54, 2, 55, 2))
sketch6.addConstraint(Sketcher.Constraint("Tangent", 55, 1, 56, 1))
sketch6.addConstraint(Sketcher.Constraint("Tangent", 56, 2, 57, 2))
sketch6.addConstraint(Sketcher.Constraint("Tangent", 57, 1, 50, 1))
sketch6.addConstraint(Sketcher.Constraint("Tangent", 58, 1, 59, 1))
sketch6.addConstraint(Sketcher.Constraint("Tangent", 59, 2, 60, 2))
sketch6.addConstraint(Sketcher.Constraint("Tangent", 60, 1, 61, 1))
sketch6.addConstraint(Sketcher.Constraint("Tangent", 61, 2, 62, 2))
sketch6.addConstraint(Sketcher.Constraint("Tangent", 62, 1, 63, 1))
sketch6.addConstraint(Sketcher.Constraint("Tangent", 63, 2, 64, 2))
sketch6.addConstraint(Sketcher.Constraint("Tangent", 64, 1, 65, 1))
sketch6.addConstraint(Sketcher.Constraint("Tangent", 65, 2, 58, 2))
sketch6.addConstraint(Sketcher.Constraint("Vertical", 0))
sketch6.addConstraint(Sketcher.Constraint("Horizontal", 2))
sketch6.addConstraint(Sketcher.Constraint("Horizontal", 4))
sketch6.addConstraint(Sketcher.Constraint("Vertical", 5))
sketch6.addConstraint(Sketcher.Constraint("Horizontal", 6))
sketch6.addConstraint(Sketcher.Constraint("Horizontal", 8))
sketch6.addConstraint(Sketcher.Constraint("Vertical", 10))
sketch6.addConstraint(Sketcher.Constraint("Vertical", 12))
sketch6.addConstraint(Sketcher.Constraint("Horizontal", 13))
sketch6.addConstraint(Sketcher.Constraint("Vertical", 14))
sketch6.addConstraint(Sketcher.Constraint("Vertical", 16))
sketch6.addConstraint(Sketcher.Constraint("Horizontal", 18))
sketch6.addConstraint(Sketcher.Constraint("Horizontal", 20))
sketch6.addConstraint(Sketcher.Constraint("Vertical", 21))
sketch6.addConstraint(Sketcher.Constraint("Horizontal", 22))
sketch6.addConstraint(Sketcher.Constraint("Horizontal", 24))
sketch6.addConstraint(Sketcher.Constraint("Vertical", 26))
sketch6.addConstraint(Sketcher.Constraint("Vertical", 28))
sketch6.addConstraint(Sketcher.Constraint("Horizontal", 29))
sketch6.addConstraint(Sketcher.Constraint("Vertical", 30))
sketch6.addConstraint(Sketcher.Constraint("Horizontal", 34))
sketch6.addConstraint(Sketcher.Constraint("Vertical", 36))
sketch6.addConstraint(Sketcher.Constraint("Horizontal", 38))
sketch6.addConstraint(Sketcher.Constraint("Vertical", 40))
sketch6.addConstraint(Sketcher.Constraint("Vertical", 42))
sketch6.addConstraint(Sketcher.Constraint("Horizontal", 44))
sketch6.addConstraint(Sketcher.Constraint("Vertical", 46))
sketch6.addConstraint(Sketcher.Constraint("Horizontal", 48))
sketch6.addConstraint(Sketcher.Constraint("Horizontal", 50))
sketch6.addConstraint(Sketcher.Constraint("Vertical", 52))
sketch6.addConstraint(Sketcher.Constraint("Horizontal", 54))
sketch6.addConstraint(Sketcher.Constraint("Vertical", 56))
sketch6.addConstraint(Sketcher.Constraint("Vertical", 59))
sketch6.addConstraint(Sketcher.Constraint("Horizontal", 61))
sketch6.addConstraint(Sketcher.Constraint("Vertical", 63))
sketch6.addConstraint(Sketcher.Constraint("Horizontal", 65))
sketch6.addConstraint(Sketcher.Constraint("Equal", 1, 9))
sketch6.addConstraint(Sketcher.Constraint("Equal", 9, 17))
sketch6.addConstraint(Sketcher.Constraint("Equal", 17, 25))
sketch6.addConstraint(Sketcher.Constraint("Equal", 25, 32))
sketch6.addConstraint(Sketcher.Constraint("Equal", 32, 33))
sketch6.addConstraint(Sketcher.Constraint("Equal", 35, 37))
sketch6.addConstraint(Sketcher.Constraint("Equal", 37, 39))
sketch6.addConstraint(Sketcher.Constraint("Equal", 39, 41))
sketch6.addConstraint(Sketcher.Constraint("Equal", 41, 43))
sketch6.addConstraint(Sketcher.Constraint("Equal", 43, 45))
sketch6.addConstraint(Sketcher.Constraint("Equal", 45, 47))
sketch6.addConstraint(Sketcher.Constraint("Equal", 47, 49))
sketch6.addConstraint(Sketcher.Constraint("Equal", 49, 51))
sketch6.addConstraint(Sketcher.Constraint("Equal", 51, 53))
sketch6.addConstraint(Sketcher.Constraint("Equal", 53, 55))
sketch6.addConstraint(Sketcher.Constraint("Equal", 55, 57))
sketch6.addConstraint(Sketcher.Constraint("Equal", 57, 58))
sketch6.addConstraint(Sketcher.Constraint("Equal", 58, 60))
sketch6.addConstraint(Sketcher.Constraint("Equal", 60, 62))
sketch6.addConstraint(Sketcher.Constraint("Equal", 62, 64))
sketch6.addConstraint(Sketcher.Constraint("Equal", 33, 66))
sketch6.addConstraint(Sketcher.Constraint("Equal", 66, 67))
sketch6.addConstraint(Sketcher.Constraint("Symmetric", 1, 3, 17, 3, -1, 1))
sketch6.addConstraint(Sketcher.Constraint("Symmetric", 9, 3, 25, 3, -1, 1))
sketch6.addConstraint(Sketcher.Constraint("Symmetric", 35, 3, 51, 3, -1, 1))
sketch6.addConstraint(Sketcher.Constraint("Symmetric", 39, 3, 55, 3, -1, 1))
sketch6.addConstraint(Sketcher.Constraint("Symmetric", 45, 3, 58, 3, -1, 1))
sketch6.addConstraint(Sketcher.Constraint("Symmetric", 49, 3, 62, 3, -1, 1))
sketch6.addConstraint(Sketcher.Constraint("Symmetric", 33, 3, 66, 3, -1, 1))
sketch6.addConstraint(Sketcher.Constraint("Symmetric", 32, 3, 67, 3, -1, 1))
sketch6.addConstraint(Sketcher.Constraint("Symmetric", 3, 2, 19, 2, -1, 1))
sketch6.addConstraint(Sketcher.Constraint("Symmetric", 5, 2, 21, 2, -1, 1))
sketch6.addConstraint(Sketcher.Constraint("Symmetric", 11, 2, 27, 2, -1, 1))
sketch6.addConstraint(Sketcher.Constraint("Symmetric", 13, 2, 29, 2, -1, 1))
sketch6.addConstraint(Sketcher.Constraint("Symmetric", 9, 3, 17, 3, -2))
sketch6.addConstraint(Sketcher.Constraint("Symmetric", 32, 3, 33, 3, -2))
sketch6.addConstraint(Sketcher.Constraint("Symmetric", 39, 3, 43, 3, -2))
sketch6.addConstraint(Sketcher.Constraint("Symmetric", 35, 3, 47, 3, -2))
sketch6.addConstraint(Sketcher.Constraint("Symmetric", 11, 2, 14, 2, -2))
sketch6.addConstraint(Sketcher.Constraint("Symmetric", 6, 2, 19, 2, -2))
sketch6.addConstraint(Sketcher.Constraint("Perpendicular", 3, 11))
sketch6.addConstraint(Sketcher.Constraint("Perpendicular", 7, 15))
sketch6.addConstraint(Sketcher.Constraint("Perpendicular", 11, 19))
sketch6.addConstraint(Sketcher.Constraint("Perpendicular", 15, 23))
sketch6.addConstraint(Sketcher.Constraint("Perpendicular", 19, 27))
sketch6.addConstraint(Sketcher.Constraint("Perpendicular", 23, 31))
sketch6.addConstraint(Sketcher.Constraint("Horizontal", 10, 2, 15, 2))
sketch6.addConstraint(Sketcher.Constraint("Horizontal", 27, 2, 30, 2))
sketch6.addConstraint(Sketcher.Constraint("Horizontal", 29, 2, 34, 2))
sketch6.addConstraint(Sketcher.Constraint("Vertical", 19, 2, 22, 2))
sketch6.addConstraint(Sketcher.Constraint("Vertical", 21, 2, 39, 1))
sketch6.addConstraint(Sketcher.Constraint("Equal", 24, 0))
sketch6.addConstraint(Sketcher.Constraint("Equal", 29, 5))
sketch6.addConstraint(Sketcher.Constraint("Equal", 22, 12))
sketch6.addConstraint(Sketcher.Constraint("Equal", 65, 36))
sketch6.addConstraint(Sketcher.Constraint("Equal", 7, 11))
sketch6.addConstraint(Sketcher.Constraint("Diameter", 32, Q("6.8 mm")))
sketch6.addConstraint(Sketcher.Constraint("Radius", 35, Q("0.5 mm")))
sketch6.addConstraint(Sketcher.Constraint("DistanceX", 13, 1, 13, 2, Q("9.9 mm")))
sketch6.addConstraint(Sketcher.Constraint("DistanceX", 34, 2, 34, 1, Q("2.6 mm")))
sketch6.addConstraint(Sketcher.Constraint("DistanceX", 4, 2, -1, 1, Q("28 mm")))
sketch6.addConstraint(Sketcher.Constraint("DistanceX", 2, 2, -1, 1, Q("18.8 mm")))
sketch6.addConstraint(Sketcher.Constraint("DistanceX", 4, 2, 4, 1, Q("4.438928 mm")))
sketch6.addConstraint(Sketcher.Constraint("Distance", 3, Q("6.794229 mm")))
sketch6.addConstraint(Sketcher.Constraint("DistanceX", 32, 3, -1, 1, Q("14.298518 mm")))
sketch6.addConstraint(Sketcher.Constraint("DistanceY", 32, 3, -1, 1, Q("14.298518 mm")))
pocket5 = body.newObject("PartDesign::Pocket", "Pocket004")
pocket5.Profile = sketch6
pocket5.Length = 1000
pocket5.Reversed = True
doc.recompute()

fillet = body.newObject("PartDesign::Fillet", "Fillet")
fillet.Base = (pocket5, edges_at(pocket5, [
    (28, 475, 19.1),
    (28, 475, 10.9),
    (29, 475, 10.9),
    (29, 475, 9.9),
    (30, 475, 9.9),
    (30, 475, 20.1),
    (29, 475, 20.1),
    (29, 475, 19.1),
    (28, 475, -10.9),
    (28, 475, -19.1),
    (29, 475, -19.1),
    (29, 475, -20.1),
    (30, 475, -20.1),
    (30, 475, -9.9),
    (29, 475, -9.9),
    (29, 475, -10.9),
]))
fillet.Radius = 0.2
doc.recompute()

fillet2 = body.newObject("PartDesign::Fillet", "Fillet001")
fillet2.Base = (fillet, edges_at(fillet, [
    (19.1, 475, -28),
    (10.9, 475, -28),
    (10.9, 475, -29),
    (9.9, 475, -29),
    (9.9, 475, -30),
    (20.1, 475, -30),
    (20.1, 475, -29),
    (19.1, 475, -29),
    (-10.9, 475, -28),
    (-19.1, 475, -28),
    (-19.6, 950, -29),
    (-19.1, 475, -29),
    (-20.1, 950, -29.5),
    (-20.1, 475, -29),
    (-20.1, 475, -30),
    (-9.9, 475, -30),
    (-9.9, 475, -29),
    (-10.9, 475, -29),
    (-19.6, 0, -29),
    (-20.1, 0, -29.5),
]))
fillet2.Radius = 0.2
doc.recompute()

fillet3 = body.newObject("PartDesign::Fillet", "Fillet002")
fillet3.Base = (fillet2, edges_at(fillet2, [
    (-28, 475, -10.9),
    (-29, 475, -10.9),
    (-29, 475, -9.9),
    (-30, 475, -9.9),
    (-30, 475, -20.1),
    (-29, 475, -20.1),
    (-29, 475, -19.1),
    (-28, 475, 19.1),
    (-29, 475, 19.1),
    (-29, 475, 20.1),
    (-30, 475, 20.1),
    (-30, 475, 9.9),
    (-29, 475, 9.9),
    (-29, 475, 10.9),
]))
fillet3.Radius = 0.2
doc.recompute()

fillet4 = body.newObject("PartDesign::Fillet", "Fillet003")
fillet4.Base = (fillet3, edges_at(fillet3, [
    (-19.1, 475, 28),
    (-10.9, 475, 28),
    (-10.9, 475, 29),
    (-9.9, 475, 29),
    (-9.9, 475, 30),
    (-20.1, 475, 30),
    (-20.1, 475, 29),
    (-19.1, 475, 29),
    (10.9, 475, 28),
    (19.1, 475, 28),
    (19.1, 475, 29),
    (20.1, 475, 29),
    (20.1, 475, 30),
    (9.9, 475, 30),
    (9.9, 475, 29),
    (10.9, 475, 29),
]))
fillet4.Radius = 0.2

doc.recompute()
